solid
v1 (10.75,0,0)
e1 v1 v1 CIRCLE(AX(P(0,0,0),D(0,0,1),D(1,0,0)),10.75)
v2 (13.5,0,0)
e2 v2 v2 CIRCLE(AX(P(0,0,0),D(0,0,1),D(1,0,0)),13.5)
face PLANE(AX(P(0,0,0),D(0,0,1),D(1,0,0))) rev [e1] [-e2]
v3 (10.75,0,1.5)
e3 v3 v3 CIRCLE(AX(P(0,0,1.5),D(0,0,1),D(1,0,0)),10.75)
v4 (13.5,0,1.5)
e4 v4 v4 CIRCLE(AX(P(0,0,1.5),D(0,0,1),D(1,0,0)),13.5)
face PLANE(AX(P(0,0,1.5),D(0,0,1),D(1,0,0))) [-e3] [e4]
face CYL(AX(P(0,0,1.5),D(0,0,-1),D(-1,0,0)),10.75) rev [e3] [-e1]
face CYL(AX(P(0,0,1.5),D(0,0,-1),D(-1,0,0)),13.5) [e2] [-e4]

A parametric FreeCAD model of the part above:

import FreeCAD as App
import Part
import Sketcher
from FreeCAD import Vector
Q = App.Units.Quantity

doc = App.newDocument("Part")
params = doc.addObject("Spreadsheet::Sheet", "Params")
for row, (alias, value) in enumerate([
    ("sketch1_diameter", "27 mm"),
    ("sketch1_diameter2", "21.5 mm"),
    ("pad1_length", "1.5 mm"),
], start=1):
    params.set(f"A{row}", alias)
    params.set(f"B{row}", "=" + value)
    params.setAlias(f"B{row}", alias)

body = doc.addObject("PartDesign::Body", "Body")

sketch1 = body.newObject("Sketcher::SketchObject", "Sketch")
sketch1.AttachmentSupport = (doc.getObject("XY_Plane"), [""])
sketch1.MapMode = "FlatFace"
sketch1.addGeometry(Part.Circle(Vector(0, 0, 0), Vector(0, 0, 1), 13.5), False)
sketch1.addGeometry(Part.Circle(Vector(0, 0, 0), Vector(0, 0, 1), 10.75), False)
sketch1.addConstraint(Sketcher.Constraint("Coincident", 0, 3, -1, 1))
sketch1.addConstraint(Sketcher.Constraint("Coincident", 1, 3, -1, 1))
sketch1.addConstraint(Sketcher.Constraint("Diameter", 0, Q("27 mm")))
sketch1.addConstraint(Sketcher.Constraint("Diameter", 1, Q("21.5 mm")))
sketch1.setExpression("Constraints[2]", "Params.sketch1_diameter")
sketch1.setExpression("Constraints[3]", "Params.sketch1_diameter2")
pad1 = body.newObject("PartDesign::Pad", "Pad")
pad1.Profile = sketch1
pad1.setExpression("Length", "Params.pad1_length")

doc.recompute()
